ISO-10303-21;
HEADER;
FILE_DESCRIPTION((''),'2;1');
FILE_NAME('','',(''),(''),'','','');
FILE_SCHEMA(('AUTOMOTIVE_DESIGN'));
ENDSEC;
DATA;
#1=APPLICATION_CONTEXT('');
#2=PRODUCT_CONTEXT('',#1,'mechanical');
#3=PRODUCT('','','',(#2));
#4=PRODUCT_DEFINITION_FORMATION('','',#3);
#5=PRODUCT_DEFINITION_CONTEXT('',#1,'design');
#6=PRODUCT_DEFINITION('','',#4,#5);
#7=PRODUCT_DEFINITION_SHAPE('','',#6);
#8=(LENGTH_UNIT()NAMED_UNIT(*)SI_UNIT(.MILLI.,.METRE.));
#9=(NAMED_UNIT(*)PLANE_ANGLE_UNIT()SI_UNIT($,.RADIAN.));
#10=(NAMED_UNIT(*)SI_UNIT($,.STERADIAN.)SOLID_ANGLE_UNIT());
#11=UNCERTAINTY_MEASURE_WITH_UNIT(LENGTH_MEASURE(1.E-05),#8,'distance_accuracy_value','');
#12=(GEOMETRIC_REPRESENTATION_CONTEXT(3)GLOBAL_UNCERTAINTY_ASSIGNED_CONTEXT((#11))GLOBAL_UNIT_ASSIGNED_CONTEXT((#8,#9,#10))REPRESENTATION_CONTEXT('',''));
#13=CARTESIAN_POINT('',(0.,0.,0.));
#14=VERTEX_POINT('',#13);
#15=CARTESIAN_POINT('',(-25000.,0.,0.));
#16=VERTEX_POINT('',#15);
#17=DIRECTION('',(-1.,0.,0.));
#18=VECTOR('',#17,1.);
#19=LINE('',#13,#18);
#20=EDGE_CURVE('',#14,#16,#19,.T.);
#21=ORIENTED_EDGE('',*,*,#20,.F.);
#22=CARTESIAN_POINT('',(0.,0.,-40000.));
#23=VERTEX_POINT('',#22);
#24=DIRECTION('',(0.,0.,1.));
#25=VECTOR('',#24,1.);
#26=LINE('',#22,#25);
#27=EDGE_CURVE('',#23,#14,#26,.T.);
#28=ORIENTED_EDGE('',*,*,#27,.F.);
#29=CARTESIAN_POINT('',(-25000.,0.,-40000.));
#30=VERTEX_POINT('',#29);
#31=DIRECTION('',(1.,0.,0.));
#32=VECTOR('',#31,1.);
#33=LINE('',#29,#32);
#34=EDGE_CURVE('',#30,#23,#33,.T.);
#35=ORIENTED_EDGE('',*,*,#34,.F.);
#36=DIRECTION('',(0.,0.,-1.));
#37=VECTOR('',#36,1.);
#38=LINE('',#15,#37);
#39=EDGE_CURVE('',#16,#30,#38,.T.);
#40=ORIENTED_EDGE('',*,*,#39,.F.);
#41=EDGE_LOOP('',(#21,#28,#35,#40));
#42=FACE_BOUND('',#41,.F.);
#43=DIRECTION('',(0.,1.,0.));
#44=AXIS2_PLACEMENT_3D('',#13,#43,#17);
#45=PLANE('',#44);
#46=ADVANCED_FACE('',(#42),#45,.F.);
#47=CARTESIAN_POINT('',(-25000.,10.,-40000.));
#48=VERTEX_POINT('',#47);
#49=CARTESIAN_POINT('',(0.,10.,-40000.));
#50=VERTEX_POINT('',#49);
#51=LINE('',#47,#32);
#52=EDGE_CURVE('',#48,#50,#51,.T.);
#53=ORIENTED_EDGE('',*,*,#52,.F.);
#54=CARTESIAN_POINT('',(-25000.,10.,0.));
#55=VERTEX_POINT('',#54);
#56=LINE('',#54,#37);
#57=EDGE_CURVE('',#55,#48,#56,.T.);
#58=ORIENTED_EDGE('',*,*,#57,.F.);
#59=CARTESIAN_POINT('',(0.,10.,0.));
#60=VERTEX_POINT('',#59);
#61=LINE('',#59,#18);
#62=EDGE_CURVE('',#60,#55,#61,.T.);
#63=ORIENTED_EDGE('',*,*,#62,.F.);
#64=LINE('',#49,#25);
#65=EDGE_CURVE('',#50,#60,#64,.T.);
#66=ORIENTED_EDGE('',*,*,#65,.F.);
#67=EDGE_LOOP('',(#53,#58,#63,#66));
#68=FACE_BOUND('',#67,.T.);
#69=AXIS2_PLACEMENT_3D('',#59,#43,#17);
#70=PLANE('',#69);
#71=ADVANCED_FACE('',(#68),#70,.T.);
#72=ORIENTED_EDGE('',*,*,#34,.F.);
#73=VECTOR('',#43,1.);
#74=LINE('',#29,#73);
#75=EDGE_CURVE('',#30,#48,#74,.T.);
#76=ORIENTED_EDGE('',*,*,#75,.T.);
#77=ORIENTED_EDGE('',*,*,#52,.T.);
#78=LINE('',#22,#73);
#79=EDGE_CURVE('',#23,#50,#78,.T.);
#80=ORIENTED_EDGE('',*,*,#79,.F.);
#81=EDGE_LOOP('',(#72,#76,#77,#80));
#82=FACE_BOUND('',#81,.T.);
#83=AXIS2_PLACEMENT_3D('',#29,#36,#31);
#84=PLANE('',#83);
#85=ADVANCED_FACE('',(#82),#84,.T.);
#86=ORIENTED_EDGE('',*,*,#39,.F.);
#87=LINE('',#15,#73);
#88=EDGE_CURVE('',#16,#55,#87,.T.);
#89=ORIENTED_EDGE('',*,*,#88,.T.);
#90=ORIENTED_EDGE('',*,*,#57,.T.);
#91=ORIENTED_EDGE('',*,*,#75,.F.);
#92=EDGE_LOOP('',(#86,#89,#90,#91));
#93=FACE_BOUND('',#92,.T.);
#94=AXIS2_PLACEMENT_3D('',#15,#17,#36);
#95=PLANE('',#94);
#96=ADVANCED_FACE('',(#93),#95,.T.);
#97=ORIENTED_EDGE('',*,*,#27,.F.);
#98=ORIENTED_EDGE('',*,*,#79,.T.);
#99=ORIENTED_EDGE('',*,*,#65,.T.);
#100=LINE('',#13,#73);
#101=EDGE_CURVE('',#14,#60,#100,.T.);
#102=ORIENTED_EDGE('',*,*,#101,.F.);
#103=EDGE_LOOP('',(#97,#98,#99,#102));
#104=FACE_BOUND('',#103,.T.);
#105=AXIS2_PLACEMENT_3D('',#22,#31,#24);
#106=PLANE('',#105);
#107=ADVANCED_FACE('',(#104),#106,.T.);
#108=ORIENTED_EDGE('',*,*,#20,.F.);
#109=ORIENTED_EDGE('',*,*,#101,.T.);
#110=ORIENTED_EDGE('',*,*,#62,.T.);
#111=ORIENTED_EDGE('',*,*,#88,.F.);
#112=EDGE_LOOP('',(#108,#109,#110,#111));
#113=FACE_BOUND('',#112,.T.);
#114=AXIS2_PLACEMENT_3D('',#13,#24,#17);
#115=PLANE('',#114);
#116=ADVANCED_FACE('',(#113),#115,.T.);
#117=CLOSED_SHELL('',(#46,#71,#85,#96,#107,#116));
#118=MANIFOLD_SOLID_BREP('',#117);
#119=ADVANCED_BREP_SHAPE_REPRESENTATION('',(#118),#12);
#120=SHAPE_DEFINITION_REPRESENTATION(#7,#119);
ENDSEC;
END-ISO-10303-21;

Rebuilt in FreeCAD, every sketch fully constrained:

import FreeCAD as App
import Part
import Sketcher


def add_polygon(sketch, points):
    """Adds a closed chain of lines whose ends are joined by coincident constraints."""
    first, n = sketch.GeometryCount, len(points)
    for a, b in zip(points, points[1:] + points[:1]):
        sketch.addGeometry(Part.LineSegment(App.Vector(*a, 0), App.Vector(*b, 0)), False)
    for i in range(n):
        sketch.addConstraint(Sketcher.Constraint("Coincident", first + i, 2, first + (i + 1) % n, 1))

doc = App.newDocument("Part")
body = doc.addObject("PartDesign::Body", "Body")

# Sketch on XZ plane
sketch1 = doc.addObject("Sketcher::SketchObject", "Sketch")
body.addObject(sketch1)
sketch1.AttachmentSupport = (doc.XZ_Plane, [""])
sketch1.MapMode = "FlatFace"
add_polygon(sketch1, [(-25000, 0), (0, 0), (0, -40000), (-25000, -40000)])  # lines 0-3
sketch1.addConstraint(Sketcher.Constraint("Horizontal", 0))
sketch1.addConstraint(Sketcher.Constraint("Vertical", 1))
sketch1.addConstraint(Sketcher.Constraint("Horizontal", 2))
sketch1.addConstraint(Sketcher.Constraint("Vertical", 3))
sketch1.addConstraint(Sketcher.Constraint("Coincident", 0, 2, -1, 1))
sketch1.addConstraint(Sketcher.Constraint("DistanceX", 0, 1, 0, 2, 25000.0))
sketch1.addConstraint(Sketcher.Constraint("DistanceY", 1, 2, 1, 1, 40000.0))
pad1 = doc.addObject("PartDesign::Pad", "Pad")
body.addObject(pad1)
pad1.Profile = sketch1
pad1.Length = 10
pad1.Reversed = True

doc.recompute()
